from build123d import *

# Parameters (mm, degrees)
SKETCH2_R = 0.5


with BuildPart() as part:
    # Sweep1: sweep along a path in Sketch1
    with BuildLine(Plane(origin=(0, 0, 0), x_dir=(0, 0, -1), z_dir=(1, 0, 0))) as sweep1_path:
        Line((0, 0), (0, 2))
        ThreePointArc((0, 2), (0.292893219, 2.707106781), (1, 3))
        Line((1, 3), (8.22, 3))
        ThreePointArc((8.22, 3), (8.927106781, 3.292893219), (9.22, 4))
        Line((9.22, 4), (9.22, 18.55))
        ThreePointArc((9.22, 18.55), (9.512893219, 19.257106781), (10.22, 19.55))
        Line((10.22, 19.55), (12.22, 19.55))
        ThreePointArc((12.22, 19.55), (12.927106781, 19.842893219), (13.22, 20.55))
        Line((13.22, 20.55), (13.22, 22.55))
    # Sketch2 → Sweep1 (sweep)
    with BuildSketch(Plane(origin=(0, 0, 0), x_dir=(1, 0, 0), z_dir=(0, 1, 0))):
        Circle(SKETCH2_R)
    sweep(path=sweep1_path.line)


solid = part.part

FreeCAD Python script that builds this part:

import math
import FreeCAD as App
import Part
import Sketcher

V = App.Vector

doc = App.newDocument("Part")
body = doc.addObject("PartDesign::Body", "Body")

sketch1 = body.newObject("Sketcher::SketchObject", "Sketch")
sketch1.AttachmentSupport = (doc.getObject("XZ_Plane"), [""])
sketch1.MapMode = "FlatFace"
sketch1.addGeometry(Part.Circle(V(0, 0, 0), V(0, 0, 1), 0.5), False)
sketch1.addConstraint([
    Sketcher.Constraint("Coincident", 0, 3, -1, 1),
    Sketcher.Constraint("Diameter", 0, 1.0),
])

sketch2 = body.newObject("Sketcher::SketchObject", "Sketch001")
sketch2.AttachmentSupport = (doc.getObject("YZ_Plane"), [""])
sketch2.MapMode = "FlatFace"
sketch2.addGeometry([
    Part.LineSegment(V(0, 0, 0), V(2, 0, 0)),
    Part.ArcOfCircle(Part.Circle(V(2, -1, 0), V(0, 0, 1), 1), math.radians(0), math.radians(90)),
    Part.LineSegment(V(3, -1, 0), V(3, -8.22, 0)),
    Part.ArcOfCircle(Part.Circle(V(4, -8.22, 0), V(0, 0, 1), 1), math.radians(-180), math.radians(-90)),
    Part.LineSegment(V(4, -9.22, 0), V(18.55, -9.22, 0)),
    Part.ArcOfCircle(Part.Circle(V(18.55, -10.22, 0), V(0, 0, 1), 1), math.radians(0), math.radians(90)),
    Part.LineSegment(V(19.55, -10.22, 0), V(19.55, -12.22, 0)),
    Part.ArcOfCircle(Part.Circle(V(20.55, -12.22, 0), V(0, 0, 1), 1), math.radians(-180), math.radians(-90)),
    Part.LineSegment(V(20.55, -13.22, 0), V(22.55, -13.22, 0)),
], False)
sketch2.addConstraint([
    Sketcher.Constraint("Tangent", 0, 2, 1, 2),
    Sketcher.Constraint("Tangent", 1, 1, 2, 1),
    Sketcher.Constraint("Tangent", 2, 2, 3, 1),
    Sketcher.Constraint("Tangent", 3, 2, 4, 1),
    Sketcher.Constraint("Tangent", 4, 2, 5, 2),
    Sketcher.Constraint("Tangent", 5, 1, 6, 1),
    Sketcher.Constraint("Tangent", 6, 2, 7, 1),
    Sketcher.Constraint("Tangent", 7, 2, 8, 1),
    Sketcher.Constraint("Horizontal", 0),
    Sketcher.Constraint("Vertical", 2),
    Sketcher.Constraint("Horizontal", 4),
    Sketcher.Constraint("Vertical", 6),
    Sketcher.Constraint("Horizontal", 8),
    Sketcher.Constraint("Coincident", 0, 1, -1, 1),
    Sketcher.Constraint("Equal", 1, 3),
    Sketcher.Constraint("Equal", 3, 5),
    Sketcher.Constraint("Equal", 5, 7),
    Sketcher.Constraint("Equal", 0, 8),
    Sketcher.Constraint("Equal", 8, 6),
    Sketcher.Constraint("Radius", 1, 1.0),
    Sketcher.Constraint("DistanceX", 0, 1, 0, 2, 2.0),
    Sketcher.Constraint("DistanceX", 4, 1, 4, 2, 14.55),
    Sketcher.Constraint("DistanceY", 2, 2, 2, 1, 7.22),
])
doc.recompute()

additivepipe = body.newObject("PartDesign::AdditivePipe", "AdditivePipe")
additivepipe.Profile = sketch1
additivepipe.Spine = (sketch2, ["Edge1", "Edge2", "Edge3", "Edge4", "Edge5", "Edge6", "Edge7", "Edge8", "Edge9"])

doc.recompute()
